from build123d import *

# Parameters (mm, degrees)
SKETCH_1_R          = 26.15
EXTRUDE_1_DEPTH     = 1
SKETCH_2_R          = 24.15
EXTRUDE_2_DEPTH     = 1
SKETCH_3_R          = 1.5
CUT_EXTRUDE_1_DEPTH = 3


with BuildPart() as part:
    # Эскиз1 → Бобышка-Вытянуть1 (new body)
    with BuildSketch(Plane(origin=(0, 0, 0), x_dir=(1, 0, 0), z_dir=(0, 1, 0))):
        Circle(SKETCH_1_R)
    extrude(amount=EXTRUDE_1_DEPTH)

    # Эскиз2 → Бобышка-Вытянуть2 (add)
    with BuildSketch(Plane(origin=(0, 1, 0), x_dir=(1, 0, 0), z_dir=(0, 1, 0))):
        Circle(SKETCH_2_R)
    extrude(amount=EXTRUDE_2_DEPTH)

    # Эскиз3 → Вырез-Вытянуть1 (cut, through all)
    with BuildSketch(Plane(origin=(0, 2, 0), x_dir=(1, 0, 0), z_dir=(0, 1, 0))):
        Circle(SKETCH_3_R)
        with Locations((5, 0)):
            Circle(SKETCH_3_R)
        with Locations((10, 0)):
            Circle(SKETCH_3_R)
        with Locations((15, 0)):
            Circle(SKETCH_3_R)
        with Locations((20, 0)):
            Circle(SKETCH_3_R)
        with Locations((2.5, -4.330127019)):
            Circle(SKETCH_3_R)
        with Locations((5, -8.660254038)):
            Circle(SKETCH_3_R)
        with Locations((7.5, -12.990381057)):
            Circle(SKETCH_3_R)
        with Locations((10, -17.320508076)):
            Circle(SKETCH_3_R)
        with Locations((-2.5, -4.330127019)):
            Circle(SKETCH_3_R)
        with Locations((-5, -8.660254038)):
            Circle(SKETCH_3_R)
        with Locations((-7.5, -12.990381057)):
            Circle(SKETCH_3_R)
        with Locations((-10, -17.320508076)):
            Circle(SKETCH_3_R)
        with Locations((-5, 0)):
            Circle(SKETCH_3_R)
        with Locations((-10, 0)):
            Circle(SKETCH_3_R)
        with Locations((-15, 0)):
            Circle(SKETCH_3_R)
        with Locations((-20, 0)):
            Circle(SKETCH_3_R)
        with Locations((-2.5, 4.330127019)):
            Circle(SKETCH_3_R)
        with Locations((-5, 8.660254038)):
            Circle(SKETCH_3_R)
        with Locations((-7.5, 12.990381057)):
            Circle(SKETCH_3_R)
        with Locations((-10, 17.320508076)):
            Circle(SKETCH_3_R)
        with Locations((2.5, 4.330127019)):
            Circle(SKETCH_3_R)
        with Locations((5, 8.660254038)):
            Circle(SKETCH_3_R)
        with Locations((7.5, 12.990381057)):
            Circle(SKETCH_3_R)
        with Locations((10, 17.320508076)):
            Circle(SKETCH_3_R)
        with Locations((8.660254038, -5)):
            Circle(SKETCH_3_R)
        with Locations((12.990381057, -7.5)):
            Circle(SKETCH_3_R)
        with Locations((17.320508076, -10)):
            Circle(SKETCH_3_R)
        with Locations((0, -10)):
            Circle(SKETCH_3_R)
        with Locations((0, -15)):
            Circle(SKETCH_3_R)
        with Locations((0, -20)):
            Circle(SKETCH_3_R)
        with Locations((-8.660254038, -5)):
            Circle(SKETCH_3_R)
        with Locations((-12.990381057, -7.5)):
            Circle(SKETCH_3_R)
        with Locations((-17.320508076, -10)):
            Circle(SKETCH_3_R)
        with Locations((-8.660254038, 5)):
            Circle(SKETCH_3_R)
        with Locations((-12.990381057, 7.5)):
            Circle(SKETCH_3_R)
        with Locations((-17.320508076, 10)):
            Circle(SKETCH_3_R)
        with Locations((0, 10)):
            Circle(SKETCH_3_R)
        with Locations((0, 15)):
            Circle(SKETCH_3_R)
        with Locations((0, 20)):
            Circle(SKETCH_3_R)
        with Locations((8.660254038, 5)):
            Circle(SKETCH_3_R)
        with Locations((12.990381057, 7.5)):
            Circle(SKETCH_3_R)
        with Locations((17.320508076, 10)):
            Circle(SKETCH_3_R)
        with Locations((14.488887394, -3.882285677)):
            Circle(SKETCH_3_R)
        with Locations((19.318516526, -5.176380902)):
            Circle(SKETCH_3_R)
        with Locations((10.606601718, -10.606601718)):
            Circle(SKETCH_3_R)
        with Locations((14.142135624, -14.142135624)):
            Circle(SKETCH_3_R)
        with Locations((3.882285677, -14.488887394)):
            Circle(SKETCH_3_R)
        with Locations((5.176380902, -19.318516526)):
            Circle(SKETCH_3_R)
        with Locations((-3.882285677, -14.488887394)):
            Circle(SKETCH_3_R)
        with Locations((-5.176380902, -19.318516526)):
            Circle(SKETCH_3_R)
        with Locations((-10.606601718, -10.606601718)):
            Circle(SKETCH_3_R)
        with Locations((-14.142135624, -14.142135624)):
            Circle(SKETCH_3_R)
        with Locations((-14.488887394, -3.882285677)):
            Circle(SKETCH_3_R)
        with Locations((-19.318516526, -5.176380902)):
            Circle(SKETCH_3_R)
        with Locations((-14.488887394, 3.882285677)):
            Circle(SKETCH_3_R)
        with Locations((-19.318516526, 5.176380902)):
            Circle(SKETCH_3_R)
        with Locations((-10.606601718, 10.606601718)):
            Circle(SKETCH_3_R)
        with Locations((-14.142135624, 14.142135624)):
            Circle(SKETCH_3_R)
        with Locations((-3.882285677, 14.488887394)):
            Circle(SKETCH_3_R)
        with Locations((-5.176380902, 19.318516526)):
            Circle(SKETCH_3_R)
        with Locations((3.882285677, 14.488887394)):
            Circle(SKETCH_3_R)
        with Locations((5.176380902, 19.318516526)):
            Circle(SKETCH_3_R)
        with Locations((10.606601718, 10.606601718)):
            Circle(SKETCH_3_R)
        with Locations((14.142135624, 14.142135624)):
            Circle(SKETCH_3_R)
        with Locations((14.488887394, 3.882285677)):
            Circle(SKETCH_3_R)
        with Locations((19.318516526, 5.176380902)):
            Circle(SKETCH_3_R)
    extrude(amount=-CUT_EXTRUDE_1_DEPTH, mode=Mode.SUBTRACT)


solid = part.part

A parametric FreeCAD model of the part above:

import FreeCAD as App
import Part
import Sketcher
from FreeCAD import Vector
Q = App.Units.Quantity

doc = App.newDocument("Part")
body = doc.addObject("PartDesign::Body", "Body")

# Sketch on XZ plane
sketch1 = doc.addObject("Sketcher::SketchObject", "Sketch")
body.addObject(sketch1)
sketch1.AttachmentSupport = (doc.XZ_Plane, [""])
sketch1.MapMode = "FlatFace"
sketch1.addGeometry(Part.Circle(Vector(0, 0, 0), Vector(0, 0, 1), 26), False)
sketch1.addConstraint([
    Sketcher.Constraint("Coincident", 0, 3, -1, 1),
    Sketcher.Constraint("Diameter", 0, Q("52.3 mm")),
])
pad1 = doc.addObject("PartDesign::Pad", "Pad")
body.addObject(pad1)
pad1.Profile = sketch1
pad1.Length = 1
pad1.Reversed = True

# Sketch on XZ plane
sketch2 = doc.addObject("Sketcher::SketchObject", "Sketch001")
body.addObject(sketch2)
sketch2.AttachmentSupport = (doc.XZ_Plane, [""])
sketch2.MapMode = "FlatFace"
sketch2.AttachmentOffset = App.Placement(Vector(0, 0, -1), App.Rotation())
sketch2.addGeometry(Part.Circle(Vector(0, 0, 0), Vector(0, 0, 1), 24), False)
sketch2.addConstraint([
    Sketcher.Constraint("Coincident", 0, 3, -1, 1),
    Sketcher.Constraint("Diameter", 0, Q("48.3 mm")),
])
pad2 = doc.addObject("PartDesign::Pad", "Pad001")
body.addObject(pad2)
pad2.Profile = sketch2
pad2.Length = 1
pad2.Reversed = True

# Sketch on XZ plane
sketch3 = doc.addObject("Sketcher::SketchObject", "Sketch002")
body.addObject(sketch3)
sketch3.AttachmentSupport = (doc.XZ_Plane, [""])
sketch3.MapMode = "FlatFace"
sketch3.AttachmentOffset = App.Placement(Vector(0, 0, -2), App.Rotation())
sketch3.addGeometry([
    Part.Circle(Vector(0, 0, 0), Vector(0, 0, 1), 1.5),  # 0
    Part.Circle(Vector(5, 0, 0), Vector(0, 0, 1), 1.5),  # 1
    Part.Circle(Vector(10, 0, 0), Vector(0, 0, 1), 1.5),  # 2
    Part.Circle(Vector(15, 0, 0), Vector(0, 0, 1), 1.5),  # 3
    Part.Circle(Vector(20, 0, 0), Vector(0, 0, 1), 1.5),  # 4
    Part.Circle(Vector(2.5, 4.3, 0), Vector(0, 0, 1), 1.5),  # 5
    Part.Circle(Vector(5, 8.7, 0), Vector(0, 0, 1), 1.5),  # 6
    Part.Circle(Vector(7.5, 13, 0), Vector(0, 0, 1), 1.5),  # 7
    Part.Circle(Vector(10, 17.3, 0), Vector(0, 0, 1), 1.5),  # 8
    Part.Circle(Vector(-2.5, 4.3, 0), Vector(0, 0, 1), 1.5),  # 9
    Part.Circle(Vector(-5, 8.7, 0), Vector(0, 0, 1), 1.5),  # 10
    Part.Circle(Vector(-7.5, 13, 0), Vector(0, 0, 1), 1.5),  # 11
    Part.Circle(Vector(-10, 17.3, 0), Vector(0, 0, 1), 1.5),  # 12
    Part.Circle(Vector(-5, 0, 0), Vector(0, 0, 1), 1.5),  # 13
    Part.Circle(Vector(-10, 0, 0), Vector(0, 0, 1), 1.5),  # 14
    Part.Circle(Vector(-15, 0, 0), Vector(0, 0, 1), 1.5),  # 15
    Part.Circle(Vector(-20, 0, 0), Vector(0, 0, 1), 1.5),  # 16
    Part.Circle(Vector(-2.5, -4.3, 0), Vector(0, 0, 1), 1.5),  # 17
    Part.Circle(Vector(-5, -8.7, 0), Vector(0, 0, 1), 1.5),  # 18
    Part.Circle(Vector(-7.5, -13, 0), Vector(0, 0, 1), 1.5),  # 19
    Part.Circle(Vector(-10, -17.3, 0), Vector(0, 0, 1), 1.5),  # 20
    Part.Circle(Vector(2.5, -4.3, 0), Vector(0, 0, 1), 1.5),  # 21
    Part.Circle(Vector(5, -8.7, 0), Vector(0, 0, 1), 1.5),  # 22
    Part.Circle(Vector(7.5, -13, 0), Vector(0, 0, 1), 1.5),  # 23
    Part.Circle(Vector(10, -17.3, 0), Vector(0, 0, 1), 1.5),  # 24
    Part.Circle(Vector(8.7, 5, 0), Vector(0, 0, 1), 1.5),  # 25
    Part.Circle(Vector(13, 7.5, 0), Vector(0, 0, 1), 1.5),  # 26
    Part.Circle(Vector(17.3, 10, 0), Vector(0, 0, 1), 1.5),  # 27
    Part.Circle(Vector(0, 10, 0), Vector(0, 0, 1), 1.5),  # 28
    Part.Circle(Vector(0, 15, 0), Vector(0, 0, 1), 1.5),  # 29
    Part.Circle(Vector(0, 20, 0), Vector(0, 0, 1), 1.5),  # 30
    Part.Circle(Vector(-8.7, 5, 0), Vector(0, 0, 1), 1.5),  # 31
    Part.Circle(Vector(-13, 7.5, 0), Vector(0, 0, 1), 1.5),  # 32
    Part.Circle(Vector(-17.3, 10, 0), Vector(0, 0, 1), 1.5),  # 33
    Part.Circle(Vector(-8.7, -5, 0), Vector(0, 0, 1), 1.5),  # 34
    Part.Circle(Vector(-13, -7.5, 0), Vector(0, 0, 1), 1.5),  # 35
    Part.Circle(Vector(-17.3, -10, 0), Vector(0, 0, 1), 1.5),  # 36
    Part.Circle(Vector(0, -10, 0), Vector(0, 0, 1), 1.5),  # 37
    Part.Circle(Vector(0, -15, 0), Vector(0, 0, 1), 1.5),  # 38
    Part.Circle(Vector(0, -20, 0), Vector(0, 0, 1), 1.5),  # 39
    Part.Circle(Vector(8.7, -5, 0), Vector(0, 0, 1), 1.5),  # 40
    Part.Circle(Vector(13, -7.5, 0), Vector(0, 0, 1), 1.5),  # 41
    Part.Circle(Vector(17.3, -10, 0), Vector(0, 0, 1), 1.5),  # 42
    Part.Circle(Vector(14.5, 3.9, 0), Vector(0, 0, 1), 1.5),  # 43
    Part.Circle(Vector(19.3, 5.2, 0), Vector(0, 0, 1), 1.5),  # 44
    Part.Circle(Vector(10.6, 10.6, 0), Vector(0, 0, 1), 1.5),  # 45
    Part.Circle(Vector(14.1, 14.1, 0), Vector(0, 0, 1), 1.5),  # 46
    Part.Circle(Vector(3.9, 14.5, 0), Vector(0, 0, 1), 1.5),  # 47
    Part.Circle(Vector(5.2, 19.3, 0), Vector(0, 0, 1), 1.5),  # 48
    Part.Circle(Vector(-3.9, 14.5, 0), Vector(0, 0, 1), 1.5),  # 49
    Part.Circle(Vector(-5.2, 19.3, 0), Vector(0, 0, 1), 1.5),  # 50
    Part.Circle(Vector(-10.6, 10.6, 0), Vector(0, 0, 1), 1.5),  # 51
    Part.Circle(Vector(-14.1, 14.1, 0), Vector(0, 0, 1), 1.5),  # 52
    Part.Circle(Vector(-14.5, 3.9, 0), Vector(0, 0, 1), 1.5),  # 53
    Part.Circle(Vector(-19.3, 5.2, 0), Vector(0, 0, 1), 1.5),  # 54
    Part.Circle(Vector(-14.5, -3.9, 0), Vector(0, 0, 1), 1.5),  # 55
    Part.Circle(Vector(-19.3, -5.2, 0), Vector(0, 0, 1), 1.5),  # 56
    Part.Circle(Vector(-10.6, -10.6, 0), Vector(0, 0, 1), 1.5),  # 57
    Part.Circle(Vector(-14.1, -14.1, 0), Vector(0, 0, 1), 1.5),  # 58
    Part.Circle(Vector(-3.9, -14.5, 0), Vector(0, 0, 1), 1.5),  # 59
    Part.Circle(Vector(-5.2, -19.3, 0), Vector(0, 0, 1), 1.5),  # 60
    Part.Circle(Vector(3.9, -14.5, 0), Vector(0, 0, 1), 1.5),  # 61
    Part.Circle(Vector(5.2, -19.3, 0), Vector(0, 0, 1), 1.5),  # 62
    Part.Circle(Vector(10.6, -10.6, 0), Vector(0, 0, 1), 1.5),  # 63
    Part.Circle(Vector(14.1, -14.1, 0), Vector(0, 0, 1), 1.5),  # 64
    Part.Circle(Vector(14.5, -3.9, 0), Vector(0, 0, 1), 1.5),  # 65
    Part.Circle(Vector(19.3, -5.2, 0), Vector(0, 0, 1), 1.5),  # 66
], False)
sketch3.addConstraint([
    Sketcher.Constraint("Coincident", 0, 3, -1, 1),
    Sketcher.Constraint("Equal", 0, 1),
    Sketcher.Constraint("Equal", 1, 2),
    Sketcher.Constraint("Equal", 2, 3),
    Sketcher.Constraint("Equal", 3, 4),
    Sketcher.Constraint("Equal", 4, 5),
    Sketcher.Constraint("Equal", 5, 6),
    Sketcher.Constraint("Equal", 6, 7),
    Sketcher.Constraint("Equal", 7, 8),
    Sketcher.Constraint("Equal", 8, 9),
    Sketcher.Constraint("Equal", 9, 10),
    Sketcher.Constraint("Equal", 10, 11),
    Sketcher.Constraint("Equal", 11, 12),
    Sketcher.Constraint("Equal", 12, 13),
    Sketcher.Constraint("Equal", 13, 14),
    Sketcher.Constraint("Equal", 14, 15),
    Sketcher.Constraint("Equal", 15, 16),
    Sketcher.Constraint("Equal", 16, 17),
    Sketcher.Constraint("Equal", 17, 18),
    Sketcher.Constraint("Equal", 18, 19),
    Sketcher.Constraint("Equal", 19, 20),
    Sketcher.Constraint("Equal", 20, 21),
    Sketcher.Constraint("Equal", 21, 22),
    Sketcher.Constraint("Equal", 22, 23),
    Sketcher.Constraint("Equal", 23, 24),
    Sketcher.Constraint("Equal", 24, 25),
    Sketcher.Constraint("Equal", 25, 26),
    Sketcher.Constraint("Equal", 26, 27),
    Sketcher.Constraint("Equal", 27, 28),
    Sketcher.Constraint("Equal", 28, 29),
    Sketcher.Constraint("Equal", 29, 30),
    Sketcher.Constraint("Equal", 30, 31),
    Sketcher.Constraint("Equal", 31, 32),
    Sketcher.Constraint("Equal", 32, 33),
    Sketcher.Constraint("Equal", 33, 34),
    Sketcher.Constraint("Equal", 34, 35),
    Sketcher.Constraint("Equal", 35, 36),
    Sketcher.Constraint("Equal", 36, 37),
    Sketcher.Constraint("Equal", 37, 38),
    Sketcher.Constraint("Equal", 38, 39),
    Sketcher.Constraint("Equal", 39, 40),
    Sketcher.Constraint("Equal", 40, 41),
    Sketcher.Constraint("Equal", 41, 42),
    Sketcher.Constraint("Equal", 42, 43),
    Sketcher.Constraint("Equal", 43, 44),
    Sketcher.Constraint("Equal", 44, 45),
    Sketcher.Constraint("Equal", 45, 46),
    Sketcher.Constraint("Equal", 46, 47),
    Sketcher.Constraint("Equal", 47, 48),
    Sketcher.Constraint("Equal", 48, 49),
    Sketcher.Constraint("Equal", 49, 50),
    Sketcher.Constraint("Equal", 50, 51),
    Sketcher.Constraint("Equal", 51, 52),
    Sketcher.Constraint("Equal", 52, 53),
    Sketcher.Constraint("Equal", 53, 54),
    Sketcher.Constraint("Equal", 54, 55),
    Sketcher.Constraint("Equal", 55, 56),
    Sketcher.Constraint("Equal", 56, 57),
    Sketcher.Constraint("Equal", 57, 58),
    Sketcher.Constraint("Equal", 58, 59),
    Sketcher.Constraint("Equal", 59, 60),
    Sketcher.Constraint("Equal", 60, 61),
    Sketcher.Constraint("Equal", 61, 62),
    Sketcher.Constraint("Equal", 62, 63),
    Sketcher.Constraint("Equal", 63, 64),
    Sketcher.Constraint("Equal", 64, 65),
    Sketcher.Constraint("Equal", 65, 66),
    Sketcher.Constraint("Symmetric", 1, 3, 13, 3, -1, 1),
    Sketcher.Constraint("Symmetric", 2, 3, 14, 3, -1, 1),
    Sketcher.Constraint("Symmetric", 3, 3, 15, 3, -1, 1),
    Sketcher.Constraint("Symmetric", 4, 3, 16, 3, -1, 1),
    Sketcher.Constraint("Symmetric", 5, 3, 17, 3, -1, 1),
    Sketcher.Constraint("Symmetric", 6, 3, 18, 3, -1, 1),
    Sketcher.Constraint("Symmetric", 7, 3, 19, 3, -1, 1),
    Sketcher.Constraint("Symmetric", 8, 3, 20, 3, -1, 1),
    Sketcher.Constraint("Symmetric", 9, 3, 21, 3, -1, 1),
    Sketcher.Constraint("Symmetric", 10, 3, 22, 3, -1, 1),
    Sketcher.Constraint("Symmetric", 11, 3, 23, 3, -1, 1),
    Sketcher.Constraint("Symmetric", 12, 3, 24, 3, -1, 1),
    Sketcher.Constraint("Symmetric", 25, 3, 34, 3, -1, 1),
    Sketcher.Constraint("Symmetric", 26, 3, 35, 3, -1, 1),
    Sketcher.Constraint("Symmetric", 27, 3, 36, 3, -1, 1),
    Sketcher.Constraint("Symmetric", 28, 3, 37, 3, -1, 1),
    Sketcher.Constraint("Symmetric", 29, 3, 38, 3, -1, 1),
    Sketcher.Constraint("Symmetric", 30, 3, 39, 3, -1, 1),
    Sketcher.Constraint("Symmetric", 31, 3, 40, 3, -1, 1),
    Sketcher.Constraint("Symmetric", 32, 3, 41, 3, -1, 1),
    Sketcher.Constraint("Symmetric", 33, 3, 42, 3, -1, 1),
    Sketcher.Constraint("Symmetric", 43, 3, 55, 3, -1, 1),
    Sketcher.Constraint("Symmetric", 44, 3, 56, 3, -1, 1),
    Sketcher.Constraint("Symmetric", 45, 3, 57, 3, -1, 1),
    Sketcher.Constraint("Symmetric", 46, 3, 58, 3, -1, 1),
    Sketcher.Constraint("Symmetric", 47, 3, 59, 3, -1, 1),
    Sketcher.Constraint("Symmetric", 48, 3, 60, 3, -1, 1),
    Sketcher.Constraint("Symmetric", 49, 3, 61, 3, -1, 1),
    Sketcher.Constraint("Symmetric", 50, 3, 62, 3, -1, 1),
    Sketcher.Constraint("Symmetric", 51, 3, 63, 3, -1, 1),
    Sketcher.Constraint("Symmetric", 52, 3, 64, 3, -1, 1),
    Sketcher.Constraint("Symmetric", 53, 3, 65, 3, -1, 1),
    Sketcher.Constraint("Symmetric", 54, 3, 66, 3, -1, 1),
    Sketcher.Constraint("Symmetric", 5, 3, 9, 3, -2),
    Sketcher.Constraint("Symmetric", 6, 3, 10, 3, -2),
    Sketcher.Constraint("Symmetric", 7, 3, 11, 3, -2),
    Sketcher.Constraint("Symmetric", 8, 3, 12, 3, -2),
    Sketcher.Constraint("Symmetric", 25, 3, 31, 3, -2),
    Sketcher.Constraint("Symmetric", 26, 3, 32, 3, -2),
    Sketcher.Constraint("Symmetric", 27, 3, 33, 3, -2),
    Sketcher.Constraint("Symmetric", 47, 3, 49, 3, -2),
    Sketcher.Constraint("Symmetric", 48, 3, 50, 3, -2),
    Sketcher.Constraint("Symmetric", 45, 3, 51, 3, -2),
    Sketcher.Constraint("Symmetric", 46, 3, 52, 3, -2),
    Sketcher.Constraint("Symmetric", 43, 3, 53, 3, -2),
    Sketcher.Constraint("Symmetric", 44, 3, 54, 3, -2),
    Sketcher.Constraint("PointOnObject", 1, 3, -1),
    Sketcher.Constraint("PointOnObject", 2, 3, -1),
    Sketcher.Constraint("PointOnObject", 3, 3, -1),
    Sketcher.Constraint("PointOnObject", 4, 3, -1),
    Sketcher.Constraint("PointOnObject", 28, 3, -2),
    Sketcher.Constraint("PointOnObject", 29, 3, -2),
    Sketcher.Constraint("PointOnObject", 30, 3, -2),
    Sketcher.Constraint("Horizontal", 27, 3, 28, 3),
    Sketcher.Constraint("Vertical", 1, 3, 6, 3),
    Sketcher.Constraint("Vertical", 2, 3, 8, 3),
    Sketcher.Constraint("Diameter", 0, Q("3 mm")),
    Sketcher.Constraint("DistanceX", -1, 1, 1, 3, Q("5 mm")),
    Sketcher.Constraint("DistanceX", -1, 1, 2, 3, Q("10 mm")),
    Sketcher.Constraint("DistanceX", -1, 1, 3, 3, Q("15 mm")),
    Sketcher.Constraint("DistanceX", -1, 1, 4, 3, Q("20 mm")),
    Sketcher.Constraint("DistanceY", -1, 1, 25, 3, Q("5 mm")),
    Sketcher.Constraint("DistanceY", -1, 1, 27, 3, Q("10 mm")),
    Sketcher.Constraint("DistanceY", -1, 1, 29, 3, Q("15 mm")),
    Sketcher.Constraint("DistanceY", -1, 1, 30, 3, Q("20 mm")),
    Sketcher.Constraint("DistanceX", -1, 1, 5, 3, Q("2.5 mm")),
    Sketcher.Constraint("DistanceX", -1, 1, 7, 3, Q("7.5 mm")),
    Sketcher.Constraint("DistanceY", -1, 1, 26, 3, Q("7.5 mm")),
    Sketcher.Constraint("DistanceX", -1, 1, 45, 3, Q("10.606602 mm")),
    Sketcher.Constraint("DistanceY", -1, 1, 45, 3, Q("10.606602 mm")),
    Sketcher.Constraint("DistanceY", -1, 1, 7, 3, Q("12.990381 mm")),
    Sketcher.Constraint("DistanceY", -1, 1, 8, 3, Q("17.320508 mm")),
    Sketcher.Constraint("DistanceX", -1, 1, 26, 3, Q("12.990381 mm")),
    Sketcher.Constraint("DistanceX", -1, 1, 27, 3, Q("17.320508 mm")),
    Sketcher.Constraint("DistanceY", -1, 1, 44, 3, Q("5.176381 mm")),
    Sketcher.Constraint("DistanceX", -1, 1, 48, 3, Q("5.176381 mm")),
    Sketcher.Constraint("DistanceY", -1, 1, 5, 3, Q("4.330127 mm")),
    Sketcher.Constraint("DistanceY", -1, 1, 6, 3, Q("8.660254 mm")),
    Sketcher.Constraint("DistanceX", -1, 1, 25, 3, Q("8.660254 mm")),
    Sketcher.Constraint("DistanceX", -1, 1, 43, 3, Q("14.488887 mm")),
    Sketcher.Constraint("DistanceY", -1, 1, 43, 3, Q("3.882286 mm")),
    Sketcher.Constraint("DistanceX", -1, 1, 44, 3, Q("19.318517 mm")),
    Sketcher.Constraint("DistanceX", -1, 1, 46, 3, Q("14.142136 mm")),
    Sketcher.Constraint("DistanceY", -1, 1, 46, 3, Q("14.142136 mm")),
    Sketcher.Constraint("DistanceX", -1, 1, 47, 3, Q("3.882286 mm")),
    Sketcher.Constraint("DistanceY", -1, 1, 47, 3, Q("14.488887 mm")),
    Sketcher.Constraint("DistanceY", -1, 1, 48, 3, Q("19.318517 mm")),
])
pocket1 = doc.addObject("PartDesign::Pocket", "Pocket")
body.addObject(pocket1)
pocket1.Profile = sketch3
pocket1.Type = "ThroughAll"
pocket1.Reversed = True

doc.recompute()
